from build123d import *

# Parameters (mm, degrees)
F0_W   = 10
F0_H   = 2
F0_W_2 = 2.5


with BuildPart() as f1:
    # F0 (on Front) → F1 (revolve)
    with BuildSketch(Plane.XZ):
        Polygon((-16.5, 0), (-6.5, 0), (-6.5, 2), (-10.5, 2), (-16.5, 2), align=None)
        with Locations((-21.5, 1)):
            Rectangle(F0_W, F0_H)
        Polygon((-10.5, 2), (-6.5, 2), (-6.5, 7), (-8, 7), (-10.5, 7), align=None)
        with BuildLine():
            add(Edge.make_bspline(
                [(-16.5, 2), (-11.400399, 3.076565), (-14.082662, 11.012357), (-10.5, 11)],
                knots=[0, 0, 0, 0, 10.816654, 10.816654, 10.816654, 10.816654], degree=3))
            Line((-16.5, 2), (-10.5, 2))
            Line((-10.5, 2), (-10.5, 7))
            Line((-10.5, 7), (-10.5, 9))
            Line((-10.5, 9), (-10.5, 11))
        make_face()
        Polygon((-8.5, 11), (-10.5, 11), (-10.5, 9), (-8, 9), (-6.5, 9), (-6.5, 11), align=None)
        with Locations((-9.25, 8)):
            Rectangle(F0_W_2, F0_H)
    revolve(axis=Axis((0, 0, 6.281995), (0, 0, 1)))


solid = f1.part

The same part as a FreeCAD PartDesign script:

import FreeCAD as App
import Part
import Sketcher

doc = App.newDocument("Part")
body = doc.addObject("PartDesign::Body", "Body")

sketch1 = doc.addObject("Sketcher::SketchObject", "Sketch")
body.addObject(sketch1)
sketch1.AttachmentSupport = (doc.XZ_Plane, [""])
sketch1.MapMode = "FlatFace"
sketch1.addGeometry([
    Part.LineSegment(App.Vector(-6.5, 0, 0), App.Vector(-6.5, 7, 0)),
    Part.LineSegment(App.Vector(-6.5, 7, 0), App.Vector(-8, 7, 0)),
    Part.LineSegment(App.Vector(-8, 7, 0), App.Vector(-8, 9, 0)),
    Part.LineSegment(App.Vector(-8, 9, 0), App.Vector(-6.5, 9, 0)),
    Part.LineSegment(App.Vector(-6.5, 9, 0), App.Vector(-6.5, 11, 0)),
    Part.LineSegment(App.Vector(-6.5, 11, 0), App.Vector(-10.5, 11, 0)),
    Part.BSplineCurve([App.Vector(-16.5, 2, 0), App.Vector(-11.400399, 3.076565, 0), App.Vector(-14.082662, 11.012357, 0), App.Vector(-10.5, 11, 0)], [4, 4], [0, 10.816654], False, 3, [1, 1, 1, 1], False),
    Part.LineSegment(App.Vector(-16.5, 2, 0), App.Vector(-26.5, 2, 0)),
    Part.LineSegment(App.Vector(-26.5, 2, 0), App.Vector(-26.5, 0, 0)),
    Part.LineSegment(App.Vector(-26.5, 0, 0), App.Vector(-6.5, 0, 0)),
], False)
sketch1.addConstraint([
    Sketcher.Constraint("Block", 6),
    Sketcher.Constraint("Coincident", 0, 2, 1, 1),
    Sketcher.Constraint("Coincident", 1, 2, 2, 1),
    Sketcher.Constraint("Coincident", 2, 2, 3, 1),
    Sketcher.Constraint("Coincident", 3, 2, 4, 1),
    Sketcher.Constraint("Coincident", 4, 2, 5, 1),
    Sketcher.Constraint("Coincident", 5, 2, 6, 2),
    Sketcher.Constraint("Coincident", 6, 1, 7, 1),
    Sketcher.Constraint("Coincident", 7, 2, 8, 1),
    Sketcher.Constraint("Coincident", 8, 2, 9, 1),
    Sketcher.Constraint("Coincident", 9, 2, 0, 1),
    Sketcher.Constraint("Vertical", 0),
    Sketcher.Constraint("Horizontal", 1),
    Sketcher.Constraint("Vertical", 2),
    Sketcher.Constraint("Horizontal", 3),
    Sketcher.Constraint("Vertical", 4),
    Sketcher.Constraint("Horizontal", 5),
    Sketcher.Constraint("Horizontal", 7),
    Sketcher.Constraint("Vertical", 8),
    Sketcher.Constraint("Horizontal", 9),
    Sketcher.Constraint("PointOnObject", 8, 2, -1),
    Sketcher.Constraint("Vertical", 0, 2, 3, 2),
    Sketcher.Constraint("Equal", 2, 4),
    Sketcher.Constraint("Equal", 4, 8),
    Sketcher.Constraint("DistanceX", 5, 2, 5, 1, 4.0),
    Sketcher.Constraint("DistanceX", 7, 2, 7, 1, 10.0),
    Sketcher.Constraint("DistanceX", 1, 2, 1, 1, 1.5),
])
revolution = doc.addObject("PartDesign::Revolution", "Revolution")
body.addObject(revolution)
revolution.Profile = sketch1
revolution.ReferenceAxis = (sketch1, ["V_Axis"])
revolution.Angle = 360

doc.recompute()
